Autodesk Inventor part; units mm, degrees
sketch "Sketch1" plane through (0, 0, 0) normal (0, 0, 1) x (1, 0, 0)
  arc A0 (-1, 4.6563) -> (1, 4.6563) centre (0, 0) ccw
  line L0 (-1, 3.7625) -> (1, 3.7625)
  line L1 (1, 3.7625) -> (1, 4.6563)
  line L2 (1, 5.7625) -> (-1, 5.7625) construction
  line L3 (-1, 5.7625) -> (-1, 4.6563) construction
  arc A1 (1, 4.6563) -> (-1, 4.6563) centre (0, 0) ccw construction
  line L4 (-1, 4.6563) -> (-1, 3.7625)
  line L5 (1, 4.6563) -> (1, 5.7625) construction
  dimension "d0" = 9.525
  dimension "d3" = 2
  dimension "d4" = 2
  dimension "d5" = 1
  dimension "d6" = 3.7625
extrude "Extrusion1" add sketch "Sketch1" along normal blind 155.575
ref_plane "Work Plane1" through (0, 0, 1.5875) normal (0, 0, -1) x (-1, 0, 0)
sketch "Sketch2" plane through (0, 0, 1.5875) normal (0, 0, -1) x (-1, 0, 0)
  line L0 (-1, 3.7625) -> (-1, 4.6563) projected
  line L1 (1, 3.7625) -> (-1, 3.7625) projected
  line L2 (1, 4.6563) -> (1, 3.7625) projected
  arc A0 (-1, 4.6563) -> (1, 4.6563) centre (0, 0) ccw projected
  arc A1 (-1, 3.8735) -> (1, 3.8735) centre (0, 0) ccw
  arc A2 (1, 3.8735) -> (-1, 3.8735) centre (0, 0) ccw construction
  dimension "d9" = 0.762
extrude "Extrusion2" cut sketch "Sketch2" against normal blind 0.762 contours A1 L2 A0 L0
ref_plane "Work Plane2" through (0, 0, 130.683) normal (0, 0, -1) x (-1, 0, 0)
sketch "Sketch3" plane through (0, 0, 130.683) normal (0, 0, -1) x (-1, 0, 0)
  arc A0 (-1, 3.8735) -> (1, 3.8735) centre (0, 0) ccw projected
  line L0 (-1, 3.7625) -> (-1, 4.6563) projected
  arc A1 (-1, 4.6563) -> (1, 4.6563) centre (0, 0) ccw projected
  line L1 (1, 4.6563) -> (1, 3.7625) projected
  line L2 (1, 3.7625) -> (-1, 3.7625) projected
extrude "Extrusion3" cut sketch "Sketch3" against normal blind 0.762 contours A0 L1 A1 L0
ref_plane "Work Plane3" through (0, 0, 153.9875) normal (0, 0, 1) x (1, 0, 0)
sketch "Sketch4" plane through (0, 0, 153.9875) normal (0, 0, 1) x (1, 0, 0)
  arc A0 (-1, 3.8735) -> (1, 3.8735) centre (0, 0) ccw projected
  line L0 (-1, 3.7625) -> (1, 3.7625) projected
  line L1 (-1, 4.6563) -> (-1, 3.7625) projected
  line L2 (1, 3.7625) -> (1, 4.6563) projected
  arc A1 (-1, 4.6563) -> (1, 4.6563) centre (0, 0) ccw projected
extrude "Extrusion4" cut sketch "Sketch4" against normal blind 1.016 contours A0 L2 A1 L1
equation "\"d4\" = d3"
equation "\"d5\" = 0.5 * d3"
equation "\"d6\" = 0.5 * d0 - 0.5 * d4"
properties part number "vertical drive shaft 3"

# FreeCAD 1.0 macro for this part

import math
import FreeCAD as App
import Part
import Sketcher

V = App.Vector
Q = App.Units.Quantity

doc = App.newDocument("Part")
body = doc.addObject("PartDesign::Body", "Body")

# Sketch on XY plane
sketch1 = doc.addObject("Sketcher::SketchObject", "Sketch")
body.addObject(sketch1)
sketch1.AttachmentSupport = (doc.XY_Plane, [""])
sketch1.MapMode = "FlatFace"
sketch1.addGeometry([
    Part.LineSegment(V(-1, 3.8, 0), V(-1, 4.7, 0)),
    Part.ArcOfCircle(Part.Circle(V(0, 0, 0), V(0, 0, 1), 4.8), math.radians(102), math.radians(438)),
    Part.LineSegment(V(1, 4.7, 0), V(1, 3.8, 0)),
    Part.LineSegment(V(1, 3.8, 0), V(-1, 3.8, 0)),
], False)
sketch1.addConstraint([
    Sketcher.Constraint("Coincident", 0, 2, 1, 1),
    Sketcher.Constraint("Coincident", 1, 2, 2, 1),
    Sketcher.Constraint("Coincident", 2, 2, 3, 1),
    Sketcher.Constraint("Coincident", 3, 2, 0, 1),
    Sketcher.Constraint("Vertical", 0),
    Sketcher.Constraint("Vertical", 2),
    Sketcher.Constraint("Horizontal", 3),
    Sketcher.Constraint("Coincident", 1, 3, -1, 1),
    Sketcher.Constraint("Horizontal", 0, 2, 1, 2),
    Sketcher.Constraint("Radius", 1, Q("0.1875 in")),
    Sketcher.Constraint("DistanceX", 3, 2, 3, 1, Q("2 mm")),
    Sketcher.Constraint("DistanceY", -1, 1, 2, 2, Q("3.7625 mm")),
])
pad1 = doc.addObject("PartDesign::Pad", "Pad")
body.addObject(pad1)
pad1.Profile = sketch1
pad1.Length = Q("6.125 in")

# Sketch on XY plane
sketch2 = doc.addObject("Sketcher::SketchObject", "Sketch001")
body.addObject(sketch2)
sketch2.AttachmentSupport = (doc.XY_Plane, [""])
sketch2.MapMode = "FlatFace"
sketch2.AttachmentOffset = App.Placement(V(0, 0, 0.0625 * 25.4), App.Rotation())
sketch2.addGeometry([
    Part.ArcOfCircle(Part.Circle(V(0, 0, 0), V(0, 0, 1), 4), math.radians(104), math.radians(436)),
    Part.LineSegment(V(1, 3.9, 0), V(1, 4.7, 0)),
    Part.ArcOfCircle(Part.Circle(V(0, 0, 0), V(0, 0, 1), 4.8), math.radians(102), math.radians(438)),
    Part.LineSegment(V(-1, 4.7, 0), V(-1, 3.9, 0)),
], False)
sketch2.addConstraint([
    Sketcher.Constraint("Coincident", 0, 2, 1, 1),
    Sketcher.Constraint("Coincident", 1, 2, 2, 2),
    Sketcher.Constraint("Coincident", 2, 1, 3, 1),
    Sketcher.Constraint("Coincident", 3, 2, 0, 1),
    Sketcher.Constraint("Vertical", 1),
    Sketcher.Constraint("Vertical", 3),
    Sketcher.Constraint("Coincident", 0, 3, -1, 1),
    Sketcher.Constraint("Coincident", 2, 3, -1, 1),
    Sketcher.Constraint("Horizontal", 1, 2, 2, 1),
    Sketcher.Constraint("Radius", 2, Q("0.1875 in")),
    Sketcher.Constraint("Radius", 0, Q("0.1575 in")),
    Sketcher.Constraint("DistanceY", 1, 1, 1, 2, Q("0.7828 mm")),
])
pocket1 = doc.addObject("PartDesign::Pocket", "Pocket")
body.addObject(pocket1)
pocket1.Profile = sketch2
pocket1.Length = Q("0.03 in")
pocket1.Reversed = True

# Sketch on XY plane
sketch3 = doc.addObject("Sketcher::SketchObject", "Sketch002")
body.addObject(sketch3)
sketch3.AttachmentSupport = (doc.XY_Plane, [""])
sketch3.MapMode = "FlatFace"
sketch3.AttachmentOffset = App.Placement(V(0, 0, 5.145 * 25.4), App.Rotation())
sketch3.addGeometry([
    Part.ArcOfCircle(Part.Circle(V(0, 0, 0), V(0, 0, 1), 4), math.radians(104), math.radians(436)),
    Part.LineSegment(V(1, 3.9, 0), V(1, 4.7, 0)),
    Part.ArcOfCircle(Part.Circle(V(0, 0, 0), V(0, 0, 1), 4.8), math.radians(102), math.radians(438)),
    Part.LineSegment(V(-1, 4.7, 0), V(-1, 3.9, 0)),
], False)
sketch3.addConstraint([
    Sketcher.Constraint("Coincident", 0, 2, 1, 1),
    Sketcher.Constraint("Coincident", 1, 2, 2, 2),
    Sketcher.Constraint("Coincident", 2, 1, 3, 1),
    Sketcher.Constraint("Coincident", 3, 2, 0, 1),
    Sketcher.Constraint("Vertical", 1),
    Sketcher.Constraint("Vertical", 3),
    Sketcher.Constraint("Coincident", 0, 3, -1, 1),
    Sketcher.Constraint("Coincident", 2, 3, -1, 1),
    Sketcher.Constraint("Horizontal", 1, 2, 2, 1),
    Sketcher.Constraint("Radius", 2, Q("0.1875 in")),
    Sketcher.Constraint("Radius", 0, Q("0.1575 in")),
    Sketcher.Constraint("DistanceY", 1, 1, 1, 2, Q("0.7828 mm")),
])
pocket2 = doc.addObject("PartDesign::Pocket", "Pocket001")
body.addObject(pocket2)
pocket2.Profile = sketch3
pocket2.Length = Q("0.03 in")
pocket2.Reversed = True

# Sketch on XY plane
sketch4 = doc.addObject("Sketcher::SketchObject", "Sketch003")
body.addObject(sketch4)
sketch4.AttachmentSupport = (doc.XY_Plane, [""])
sketch4.MapMode = "FlatFace"
sketch4.AttachmentOffset = App.Placement(V(0, 0, 6.0625 * 25.4), App.Rotation())
sketch4.addGeometry([
    Part.ArcOfCircle(Part.Circle(V(0, 0, 0), V(0, 0, 1), 4), math.radians(104), math.radians(436)),
    Part.LineSegment(V(-1, 3.9, 0), V(-1, 4.7, 0)),
    Part.ArcOfCircle(Part.Circle(V(0, 0, 0), V(0, 0, 1), 4.8), math.radians(102), math.radians(438)),
    Part.LineSegment(V(1, 4.7, 0), V(1, 3.9, 0)),
], False)
sketch4.addConstraint([
    Sketcher.Constraint("Coincident", 0, 1, 1, 1),
    Sketcher.Constraint("Coincident", 1, 2, 2, 1),
    Sketcher.Constraint("Coincident", 2, 2, 3, 1),
    Sketcher.Constraint("Coincident", 3, 2, 0, 2),
    Sketcher.Constraint("Vertical", 1),
    Sketcher.Constraint("Vertical", 3),
    Sketcher.Constraint("Coincident", 0, 3, -1, 1),
    Sketcher.Constraint("Coincident", 2, 3, -1, 1),
    Sketcher.Constraint("Horizontal", 1, 2, 2, 2),
    Sketcher.Constraint("Radius", 2, Q("0.1875 in")),
    Sketcher.Constraint("Radius", 0, Q("0.1575 in")),
    Sketcher.Constraint("DistanceY", 1, 1, 1, 2, Q("0.7828 mm")),
])
pocket3 = doc.addObject("PartDesign::Pocket", "Pocket002")
body.addObject(pocket3)
pocket3.Profile = sketch4
pocket3.Length = Q("0.04 in")

doc.recompute()
